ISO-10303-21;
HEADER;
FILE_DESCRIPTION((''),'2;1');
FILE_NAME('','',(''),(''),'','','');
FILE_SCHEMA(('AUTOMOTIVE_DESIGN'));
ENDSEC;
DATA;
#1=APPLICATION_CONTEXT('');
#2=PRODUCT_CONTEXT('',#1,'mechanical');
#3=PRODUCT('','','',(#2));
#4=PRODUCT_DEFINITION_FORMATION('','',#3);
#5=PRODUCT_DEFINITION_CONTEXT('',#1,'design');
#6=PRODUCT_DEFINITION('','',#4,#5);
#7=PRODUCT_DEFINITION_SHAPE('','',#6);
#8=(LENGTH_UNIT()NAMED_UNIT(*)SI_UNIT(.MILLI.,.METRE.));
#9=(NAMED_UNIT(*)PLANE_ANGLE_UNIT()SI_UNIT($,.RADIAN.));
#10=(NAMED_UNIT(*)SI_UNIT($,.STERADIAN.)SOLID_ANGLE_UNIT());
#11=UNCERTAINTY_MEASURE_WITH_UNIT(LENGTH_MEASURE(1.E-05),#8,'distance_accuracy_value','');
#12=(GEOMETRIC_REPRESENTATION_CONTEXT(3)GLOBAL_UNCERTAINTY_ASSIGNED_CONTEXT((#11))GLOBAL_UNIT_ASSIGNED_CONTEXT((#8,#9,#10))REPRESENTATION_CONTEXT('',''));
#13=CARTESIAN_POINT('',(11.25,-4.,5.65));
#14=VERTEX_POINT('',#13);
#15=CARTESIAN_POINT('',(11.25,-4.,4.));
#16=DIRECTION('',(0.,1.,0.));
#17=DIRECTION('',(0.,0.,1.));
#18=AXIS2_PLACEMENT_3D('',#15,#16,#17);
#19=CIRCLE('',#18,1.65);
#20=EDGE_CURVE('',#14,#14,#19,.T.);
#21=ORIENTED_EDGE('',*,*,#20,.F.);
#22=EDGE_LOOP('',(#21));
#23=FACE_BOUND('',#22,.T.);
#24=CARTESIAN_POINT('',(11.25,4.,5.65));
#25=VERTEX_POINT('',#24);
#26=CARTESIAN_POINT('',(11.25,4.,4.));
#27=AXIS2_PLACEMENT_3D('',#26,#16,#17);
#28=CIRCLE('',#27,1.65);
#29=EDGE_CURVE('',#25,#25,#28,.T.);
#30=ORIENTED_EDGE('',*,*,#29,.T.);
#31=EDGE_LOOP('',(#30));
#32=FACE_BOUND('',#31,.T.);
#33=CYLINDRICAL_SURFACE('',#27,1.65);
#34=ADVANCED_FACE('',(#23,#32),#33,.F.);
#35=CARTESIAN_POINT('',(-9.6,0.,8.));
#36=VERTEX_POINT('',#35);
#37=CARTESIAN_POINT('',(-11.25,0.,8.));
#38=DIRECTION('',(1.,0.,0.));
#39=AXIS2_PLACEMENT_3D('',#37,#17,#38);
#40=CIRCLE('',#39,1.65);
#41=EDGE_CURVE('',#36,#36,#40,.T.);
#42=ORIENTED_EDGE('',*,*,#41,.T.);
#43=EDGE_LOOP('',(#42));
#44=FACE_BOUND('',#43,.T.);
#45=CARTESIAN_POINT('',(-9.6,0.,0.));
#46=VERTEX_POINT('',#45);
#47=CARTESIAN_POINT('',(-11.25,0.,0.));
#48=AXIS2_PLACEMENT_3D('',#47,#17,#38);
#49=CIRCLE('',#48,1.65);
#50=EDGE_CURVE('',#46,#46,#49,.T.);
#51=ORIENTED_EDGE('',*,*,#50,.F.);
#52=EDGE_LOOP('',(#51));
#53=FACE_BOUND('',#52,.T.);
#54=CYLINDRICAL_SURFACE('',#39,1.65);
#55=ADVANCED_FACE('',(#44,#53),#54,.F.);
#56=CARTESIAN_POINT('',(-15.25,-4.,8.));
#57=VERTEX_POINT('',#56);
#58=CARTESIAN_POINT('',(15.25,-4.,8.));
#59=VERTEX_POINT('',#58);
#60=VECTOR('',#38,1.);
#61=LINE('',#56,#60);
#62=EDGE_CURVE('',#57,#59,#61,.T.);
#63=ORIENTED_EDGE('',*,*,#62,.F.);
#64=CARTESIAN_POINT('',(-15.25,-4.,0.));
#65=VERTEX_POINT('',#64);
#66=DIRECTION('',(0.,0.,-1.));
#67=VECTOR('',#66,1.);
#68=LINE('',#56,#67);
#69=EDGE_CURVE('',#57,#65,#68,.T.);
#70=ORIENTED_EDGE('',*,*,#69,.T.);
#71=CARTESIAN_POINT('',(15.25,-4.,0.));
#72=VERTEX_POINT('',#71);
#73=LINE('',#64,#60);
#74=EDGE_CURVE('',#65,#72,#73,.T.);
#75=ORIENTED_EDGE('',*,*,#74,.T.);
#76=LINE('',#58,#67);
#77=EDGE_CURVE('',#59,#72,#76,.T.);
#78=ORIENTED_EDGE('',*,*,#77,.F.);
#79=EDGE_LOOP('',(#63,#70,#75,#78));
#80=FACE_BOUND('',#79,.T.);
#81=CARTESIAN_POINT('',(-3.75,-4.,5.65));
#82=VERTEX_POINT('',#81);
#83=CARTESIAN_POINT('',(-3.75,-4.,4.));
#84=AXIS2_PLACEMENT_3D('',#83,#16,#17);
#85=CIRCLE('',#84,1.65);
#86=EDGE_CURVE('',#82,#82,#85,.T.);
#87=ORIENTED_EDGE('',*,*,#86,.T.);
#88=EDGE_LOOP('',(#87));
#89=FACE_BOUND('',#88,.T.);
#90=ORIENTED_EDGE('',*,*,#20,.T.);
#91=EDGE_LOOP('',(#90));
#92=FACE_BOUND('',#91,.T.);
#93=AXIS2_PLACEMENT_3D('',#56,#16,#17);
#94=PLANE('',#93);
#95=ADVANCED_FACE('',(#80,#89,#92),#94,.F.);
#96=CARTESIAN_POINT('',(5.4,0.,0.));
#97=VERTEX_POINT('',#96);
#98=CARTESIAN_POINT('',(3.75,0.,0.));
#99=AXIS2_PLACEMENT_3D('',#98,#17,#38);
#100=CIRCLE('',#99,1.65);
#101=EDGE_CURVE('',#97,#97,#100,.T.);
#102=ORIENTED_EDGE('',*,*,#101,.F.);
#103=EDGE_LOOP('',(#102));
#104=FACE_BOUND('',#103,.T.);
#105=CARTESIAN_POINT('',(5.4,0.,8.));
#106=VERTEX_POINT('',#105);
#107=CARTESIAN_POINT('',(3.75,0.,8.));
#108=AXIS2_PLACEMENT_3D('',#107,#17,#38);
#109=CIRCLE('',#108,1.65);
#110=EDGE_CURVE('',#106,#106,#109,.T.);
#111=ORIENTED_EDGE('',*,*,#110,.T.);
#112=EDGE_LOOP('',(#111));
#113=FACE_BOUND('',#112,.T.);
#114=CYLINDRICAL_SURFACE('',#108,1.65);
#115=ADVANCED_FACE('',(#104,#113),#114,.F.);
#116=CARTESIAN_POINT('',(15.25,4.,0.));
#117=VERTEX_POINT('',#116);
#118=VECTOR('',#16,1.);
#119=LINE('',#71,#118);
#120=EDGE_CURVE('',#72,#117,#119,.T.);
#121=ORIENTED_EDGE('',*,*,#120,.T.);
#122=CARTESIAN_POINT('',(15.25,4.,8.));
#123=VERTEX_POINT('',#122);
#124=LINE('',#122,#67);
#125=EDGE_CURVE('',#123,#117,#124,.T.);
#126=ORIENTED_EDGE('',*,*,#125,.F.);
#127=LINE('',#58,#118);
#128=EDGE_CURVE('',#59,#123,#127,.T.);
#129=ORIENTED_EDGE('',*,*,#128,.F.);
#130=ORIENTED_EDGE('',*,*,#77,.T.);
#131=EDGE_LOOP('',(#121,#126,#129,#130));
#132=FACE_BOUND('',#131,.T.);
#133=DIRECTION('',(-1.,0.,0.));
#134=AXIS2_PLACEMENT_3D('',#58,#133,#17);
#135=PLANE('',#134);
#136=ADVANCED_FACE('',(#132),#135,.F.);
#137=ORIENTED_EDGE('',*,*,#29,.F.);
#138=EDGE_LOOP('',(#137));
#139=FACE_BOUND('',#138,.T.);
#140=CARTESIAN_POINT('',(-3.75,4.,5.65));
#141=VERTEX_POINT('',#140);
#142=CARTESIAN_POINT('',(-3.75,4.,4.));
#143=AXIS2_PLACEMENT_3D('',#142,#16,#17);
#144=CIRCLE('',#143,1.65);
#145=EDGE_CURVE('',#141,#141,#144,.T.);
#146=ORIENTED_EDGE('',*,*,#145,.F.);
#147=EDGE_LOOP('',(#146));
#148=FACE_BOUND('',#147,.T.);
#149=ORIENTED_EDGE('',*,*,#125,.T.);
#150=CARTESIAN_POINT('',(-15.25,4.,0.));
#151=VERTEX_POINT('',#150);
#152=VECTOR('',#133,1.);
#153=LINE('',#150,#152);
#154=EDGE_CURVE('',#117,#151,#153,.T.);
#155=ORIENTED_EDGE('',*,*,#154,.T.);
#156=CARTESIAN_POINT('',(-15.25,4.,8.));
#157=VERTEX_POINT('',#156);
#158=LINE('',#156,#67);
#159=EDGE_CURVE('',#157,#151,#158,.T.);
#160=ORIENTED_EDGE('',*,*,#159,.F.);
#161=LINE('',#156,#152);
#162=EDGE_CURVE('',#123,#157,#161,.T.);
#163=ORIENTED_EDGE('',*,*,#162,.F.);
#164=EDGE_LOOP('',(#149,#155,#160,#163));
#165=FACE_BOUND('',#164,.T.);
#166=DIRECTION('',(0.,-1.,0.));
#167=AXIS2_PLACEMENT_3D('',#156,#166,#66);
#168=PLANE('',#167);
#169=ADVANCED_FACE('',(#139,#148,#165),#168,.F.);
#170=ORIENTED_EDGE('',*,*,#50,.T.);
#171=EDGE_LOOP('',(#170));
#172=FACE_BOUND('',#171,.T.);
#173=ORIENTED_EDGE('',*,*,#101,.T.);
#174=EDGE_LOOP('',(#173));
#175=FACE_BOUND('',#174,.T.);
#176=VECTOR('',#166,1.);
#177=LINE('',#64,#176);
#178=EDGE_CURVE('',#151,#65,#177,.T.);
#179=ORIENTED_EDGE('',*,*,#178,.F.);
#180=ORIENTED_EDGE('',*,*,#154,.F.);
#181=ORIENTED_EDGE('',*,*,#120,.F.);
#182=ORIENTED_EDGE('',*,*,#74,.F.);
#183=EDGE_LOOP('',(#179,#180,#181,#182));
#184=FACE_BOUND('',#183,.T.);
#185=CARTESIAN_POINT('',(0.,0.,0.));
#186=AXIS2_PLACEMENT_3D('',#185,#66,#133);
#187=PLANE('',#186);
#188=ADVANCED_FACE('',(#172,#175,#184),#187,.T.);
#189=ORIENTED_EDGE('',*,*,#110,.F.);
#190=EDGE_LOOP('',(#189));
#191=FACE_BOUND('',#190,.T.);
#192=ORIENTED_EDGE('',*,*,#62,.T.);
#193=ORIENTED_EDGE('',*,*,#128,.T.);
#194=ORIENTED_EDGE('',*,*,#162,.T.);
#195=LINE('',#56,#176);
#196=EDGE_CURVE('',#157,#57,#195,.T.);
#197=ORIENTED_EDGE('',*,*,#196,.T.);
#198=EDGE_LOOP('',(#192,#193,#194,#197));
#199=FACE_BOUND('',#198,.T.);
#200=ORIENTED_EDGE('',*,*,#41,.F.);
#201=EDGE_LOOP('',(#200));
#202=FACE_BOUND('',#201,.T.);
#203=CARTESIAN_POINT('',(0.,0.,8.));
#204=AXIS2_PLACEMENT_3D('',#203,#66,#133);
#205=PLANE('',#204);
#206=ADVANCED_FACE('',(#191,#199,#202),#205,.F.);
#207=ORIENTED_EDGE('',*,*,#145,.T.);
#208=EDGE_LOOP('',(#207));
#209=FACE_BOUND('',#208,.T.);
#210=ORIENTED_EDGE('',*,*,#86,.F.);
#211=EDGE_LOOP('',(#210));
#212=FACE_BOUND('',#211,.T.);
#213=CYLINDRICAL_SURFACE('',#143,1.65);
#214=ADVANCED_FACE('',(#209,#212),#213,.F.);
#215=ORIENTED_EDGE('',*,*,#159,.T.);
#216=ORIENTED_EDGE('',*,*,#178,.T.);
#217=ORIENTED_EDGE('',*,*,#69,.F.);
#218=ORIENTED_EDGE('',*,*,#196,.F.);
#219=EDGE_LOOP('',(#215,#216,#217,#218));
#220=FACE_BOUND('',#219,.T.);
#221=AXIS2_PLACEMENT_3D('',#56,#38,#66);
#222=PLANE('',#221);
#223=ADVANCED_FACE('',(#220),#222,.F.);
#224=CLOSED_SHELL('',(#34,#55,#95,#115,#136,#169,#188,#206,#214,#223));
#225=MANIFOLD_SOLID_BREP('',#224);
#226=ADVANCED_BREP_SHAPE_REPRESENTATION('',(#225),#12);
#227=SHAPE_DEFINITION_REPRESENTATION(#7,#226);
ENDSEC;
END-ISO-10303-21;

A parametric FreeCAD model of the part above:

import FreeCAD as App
import Part
import Sketcher
Q = App.Units.Quantity

doc = App.newDocument("Part")
body = doc.addObject("PartDesign::Body", "Body")

sketch1 = body.newObject("Sketcher::SketchObject", "Sketch")
sketch1.AttachmentSupport = (doc.getObject("XY_Plane"), [""])
sketch1.MapMode = "FlatFace"
sketch1.addGeometry([
    Part.LineSegment(App.Vector(-15, 4, 0), App.Vector(-15, -4, 0)),
    Part.LineSegment(App.Vector(-15, -4, 0), App.Vector(15, -4, 0)),
    Part.LineSegment(App.Vector(15, -4, 0), App.Vector(15, 4, 0)),
    Part.LineSegment(App.Vector(15, 4, 0), App.Vector(-15, 4, 0)),
], False)
sketch1.addConstraint([
    Sketcher.Constraint("Coincident", 0, 2, 1, 1),
    Sketcher.Constraint("Coincident", 1, 2, 2, 1),
    Sketcher.Constraint("Coincident", 2, 2, 3, 1),
    Sketcher.Constraint("Coincident", 3, 2, 0, 1),
    Sketcher.Constraint("Vertical", 0),
    Sketcher.Constraint("Horizontal", 1),
    Sketcher.Constraint("Vertical", 2),
    Sketcher.Constraint("Horizontal", 3),
    Sketcher.Constraint("Symmetric", 0, 2, 2, 2, -1, 1),
    Sketcher.Constraint("DistanceY", 0, 2, 0, 1, Q("8 mm")),
    Sketcher.Constraint("DistanceX", 1, 1, 1, 2, Q("30.5 mm")),
])
pad1 = body.newObject("PartDesign::Pad", "Pad")
pad1.Profile = sketch1
pad1.Length = 8

sketch2 = body.newObject("Sketcher::SketchObject", "Sketch001")
sketch2.AttachmentSupport = (doc.getObject("XY_Plane"), [""])
sketch2.MapMode = "FlatFace"
sketch2.AttachmentOffset = App.Placement(App.Vector(0, 0, 8), App.Rotation())
sketch2.addGeometry([
    Part.Circle(App.Vector(3.8, 0, 0), App.Vector(0, 0, 1), 1.6),
    Part.Circle(App.Vector(-11.2, 0, 0), App.Vector(0, 0, 1), 1.6),
], False)
sketch2.addConstraint([
    Sketcher.Constraint("Equal", 0, 1),
    Sketcher.Constraint("PointOnObject", 0, 3, -1),
    Sketcher.Constraint("PointOnObject", 1, 3, -1),
    Sketcher.Constraint("Diameter", 0, Q("3.3 mm")),
    Sketcher.Constraint("DistanceX", 1, 3, 0, 3, Q("15 mm")),
    Sketcher.Constraint("DistanceX", -1, 1, 0, 3, Q("3.75 mm")),
])
doc.recompute()
hole = body.newObject("PartDesign::Hole", "Hole")
hole.Profile = sketch2
hole.ThreadType = "None"
hole.Diameter = 3.3
hole.DepthType = "ThroughAll"

sketch3 = body.newObject("Sketcher::SketchObject", "Sketch002")
sketch3.AttachmentSupport = (doc.getObject("XZ_Plane"), [""])
sketch3.MapMode = "FlatFace"
sketch3.AttachmentOffset = App.Placement(App.Vector(0, 0, -4), App.Rotation())
sketch3.addGeometry([
    Part.Circle(App.Vector(-3.8, 4, 0), App.Vector(0, 0, 1), 1.6),
    Part.Circle(App.Vector(11.2, 4, 0), App.Vector(0, 0, 1), 1.6),
], False)
sketch3.addConstraint([
    Sketcher.Constraint("Equal", 0, 1),
    Sketcher.Constraint("Horizontal", 0, 3, 1, 3),
    Sketcher.Constraint("Diameter", 0, Q("3.3 mm")),
    Sketcher.Constraint("DistanceY", -1, 1, 0, 3, Q("4 mm")),
    Sketcher.Constraint("DistanceX", 0, 3, 1, 3, Q("15 mm")),
    Sketcher.Constraint("DistanceX", 0, 3, -1, 1, Q("3.75 mm")),
])
doc.recompute()
hole2 = body.newObject("PartDesign::Hole", "Hole001")
hole2.Profile = sketch3
hole2.ThreadType = "None"
hole2.Diameter = 3.3
hole2.DepthType = "ThroughAll"
hole2.Reversed = True

doc.recompute()
